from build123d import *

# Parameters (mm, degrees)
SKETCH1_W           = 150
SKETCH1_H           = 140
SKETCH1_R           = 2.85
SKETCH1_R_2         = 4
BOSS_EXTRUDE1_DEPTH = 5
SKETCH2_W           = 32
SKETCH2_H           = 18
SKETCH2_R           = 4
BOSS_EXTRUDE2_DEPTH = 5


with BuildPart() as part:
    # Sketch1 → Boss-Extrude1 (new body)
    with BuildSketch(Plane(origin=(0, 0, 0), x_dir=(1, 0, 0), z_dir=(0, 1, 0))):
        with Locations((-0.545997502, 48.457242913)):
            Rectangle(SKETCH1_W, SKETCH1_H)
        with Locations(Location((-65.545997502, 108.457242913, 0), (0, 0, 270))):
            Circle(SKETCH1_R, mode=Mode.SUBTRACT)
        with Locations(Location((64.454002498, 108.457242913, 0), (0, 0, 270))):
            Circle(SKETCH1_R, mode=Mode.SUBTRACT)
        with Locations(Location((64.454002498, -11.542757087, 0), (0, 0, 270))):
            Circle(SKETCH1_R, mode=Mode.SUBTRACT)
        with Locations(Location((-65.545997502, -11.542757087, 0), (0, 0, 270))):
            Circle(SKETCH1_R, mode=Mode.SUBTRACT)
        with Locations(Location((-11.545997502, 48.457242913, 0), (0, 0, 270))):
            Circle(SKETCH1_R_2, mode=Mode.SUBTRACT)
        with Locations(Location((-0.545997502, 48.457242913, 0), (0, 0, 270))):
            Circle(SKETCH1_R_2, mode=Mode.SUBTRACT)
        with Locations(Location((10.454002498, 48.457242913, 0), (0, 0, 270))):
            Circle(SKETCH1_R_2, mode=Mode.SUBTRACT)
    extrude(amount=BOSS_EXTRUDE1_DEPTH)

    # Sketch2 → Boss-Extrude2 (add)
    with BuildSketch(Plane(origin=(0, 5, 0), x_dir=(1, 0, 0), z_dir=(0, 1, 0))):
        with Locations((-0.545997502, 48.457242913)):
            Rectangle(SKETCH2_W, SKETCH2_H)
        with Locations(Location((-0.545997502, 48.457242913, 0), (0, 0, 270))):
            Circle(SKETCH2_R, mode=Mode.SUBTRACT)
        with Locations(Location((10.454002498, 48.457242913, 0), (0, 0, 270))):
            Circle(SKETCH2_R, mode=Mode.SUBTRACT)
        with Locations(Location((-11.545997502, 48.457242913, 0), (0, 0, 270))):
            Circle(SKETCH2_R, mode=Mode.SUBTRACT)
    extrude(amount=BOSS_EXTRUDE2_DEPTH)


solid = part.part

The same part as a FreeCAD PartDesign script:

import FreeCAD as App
import Part
import Sketcher

V = App.Vector
Q = App.Units.Quantity

doc = App.newDocument("Part")
body = doc.addObject("PartDesign::Body", "Body")

sketch1 = body.newObject("Sketcher::SketchObject", "Sketch")
sketch1.AttachmentSupport = (doc.getObject("XZ_Plane"), [""])
sketch1.MapMode = "FlatFace"
sketch1.addGeometry(Part.LineSegment(V(-75.5, -118.5, 0), V(-75.5, 21.5, 0)), False)
sketch1.addGeometry(Part.LineSegment(V(-75.5, 21.5, 0), V(74.5, 21.5, 0)), False)
sketch1.addGeometry(Part.LineSegment(V(74.5, 21.5, 0), V(74.5, -118.5, 0)), False)
sketch1.addGeometry(Part.LineSegment(V(74.5, -118.5, 0), V(-75.5, -118.5, 0)), False)
sketch1.addGeometry(Part.Circle(V(-65.5, 11.5, 0), V(0, 0, 1), 2.9), False)
sketch1.addGeometry(Part.Circle(V(64.5, 11.5, 0), V(0, 0, 1), 2.9), False)
sketch1.addGeometry(Part.Circle(V(-11.5, -48.5, 0), V(0, 0, 1), 4), False)
sketch1.addGeometry(Part.Circle(V(-65.5, -108.5, 0), V(0, 0, 1), 2.9), False)
sketch1.addGeometry(Part.Circle(V(-0.5, -48.5, 0), V(0, 0, 1), 4), False)
sketch1.addGeometry(Part.Circle(V(10.5, -48.5, 0), V(0, 0, 1), 4), False)
sketch1.addGeometry(Part.Circle(V(64.5, -108.5, 0), V(0, 0, 1), 2.9), False)
sketch1.addConstraint(Sketcher.Constraint("Coincident", 0, 2, 1, 1))
sketch1.addConstraint(Sketcher.Constraint("Coincident", 1, 2, 2, 1))
sketch1.addConstraint(Sketcher.Constraint("Coincident", 2, 2, 3, 1))
sketch1.addConstraint(Sketcher.Constraint("Coincident", 3, 2, 0, 1))
sketch1.addConstraint(Sketcher.Constraint("Vertical", 0))
sketch1.addConstraint(Sketcher.Constraint("Horizontal", 1))
sketch1.addConstraint(Sketcher.Constraint("Vertical", 2))
sketch1.addConstraint(Sketcher.Constraint("Horizontal", 3))
sketch1.addConstraint(Sketcher.Constraint("Equal", 4, 5))
sketch1.addConstraint(Sketcher.Constraint("Equal", 5, 7))
sketch1.addConstraint(Sketcher.Constraint("Equal", 6, 8))
sketch1.addConstraint(Sketcher.Constraint("Equal", 8, 9))
sketch1.addConstraint(Sketcher.Constraint("Equal", 7, 10))
sketch1.addConstraint(Sketcher.Constraint("Horizontal", 4, 3, 5, 3))
sketch1.addConstraint(Sketcher.Constraint("Horizontal", 6, 3, 8, 3))
sketch1.addConstraint(Sketcher.Constraint("Horizontal", 8, 3, 9, 3))
sketch1.addConstraint(Sketcher.Constraint("Horizontal", 7, 3, 10, 3))
sketch1.addConstraint(Sketcher.Constraint("Vertical", 4, 3, 7, 3))
sketch1.addConstraint(Sketcher.Constraint("Vertical", 5, 3, 10, 3))
sketch1.addConstraint(Sketcher.Constraint("Diameter", 6, Q("8 mm")))
sketch1.addConstraint(Sketcher.Constraint("Diameter", 4, Q("5.7 mm")))
sketch1.addConstraint(Sketcher.Constraint("DistanceX", 1, 1, 1, 2, Q("150 mm")))
sketch1.addConstraint(Sketcher.Constraint("DistanceY", 0, 1, 0, 2, Q("140 mm")))
sketch1.addConstraint(Sketcher.Constraint("DistanceX", 4, 3, 5, 3, Q("130 mm")))
sketch1.addConstraint(Sketcher.Constraint("DistanceX", 4, 3, 6, 3, Q("54 mm")))
sketch1.addConstraint(Sketcher.Constraint("DistanceY", 6, 3, 4, 3, Q("60 mm")))
sketch1.addConstraint(Sketcher.Constraint("DistanceY", 7, 3, 6, 3, Q("60 mm")))
sketch1.addConstraint(Sketcher.Constraint("DistanceX", 6, 3, 8, 3, Q("11 mm")))
sketch1.addConstraint(Sketcher.Constraint("DistanceX", 8, 3, 9, 3, Q("11 mm")))
sketch1.addConstraint(Sketcher.Constraint("DistanceX", 0, 2, 4, 3, Q("10 mm")))
sketch1.addConstraint(Sketcher.Constraint("DistanceY", 4, 3, 0, 2, Q("10 mm")))
sketch1.addConstraint(Sketcher.Constraint("DistanceX", 4, 3, -1, 1, Q("65.545998 mm")))
sketch1.addConstraint(Sketcher.Constraint("DistanceY", -1, 1, 4, 3, Q("11.542757 mm")))
pad1 = body.newObject("PartDesign::Pad", "Pad")
pad1.Profile = sketch1
pad1.Length = 5
pad1.Reversed = True

sketch2 = body.newObject("Sketcher::SketchObject", "Sketch001")
sketch2.AttachmentSupport = (doc.getObject("XZ_Plane"), [""])
sketch2.MapMode = "FlatFace"
sketch2.AttachmentOffset = App.Placement(V(0, 0, -5), App.Rotation())
sketch2.addGeometry(Part.LineSegment(V(-16.5, -57.5, 0), V(-16.5, -39.5, 0)), False)
sketch2.addGeometry(Part.LineSegment(V(-16.5, -39.5, 0), V(15.5, -39.5, 0)), False)
sketch2.addGeometry(Part.LineSegment(V(15.5, -39.5, 0), V(15.5, -57.5, 0)), False)
sketch2.addGeometry(Part.LineSegment(V(15.5, -57.5, 0), V(-16.5, -57.5, 0)), False)
sketch2.addGeometry(Part.Circle(V(-11.5, -48.5, 0), V(0, 0, 1), 4), False)
sketch2.addGeometry(Part.Circle(V(-0.5, -48.5, 0), V(0, 0, 1), 4), False)
sketch2.addGeometry(Part.Circle(V(10.5, -48.5, 0), V(0, 0, 1), 4), False)
sketch2.addConstraint(Sketcher.Constraint("Coincident", 0, 2, 1, 1))
sketch2.addConstraint(Sketcher.Constraint("Coincident", 1, 2, 2, 1))
sketch2.addConstraint(Sketcher.Constraint("Coincident", 2, 2, 3, 1))
sketch2.addConstraint(Sketcher.Constraint("Coincident", 3, 2, 0, 1))
sketch2.addConstraint(Sketcher.Constraint("Vertical", 0))
sketch2.addConstraint(Sketcher.Constraint("Horizontal", 1))
sketch2.addConstraint(Sketcher.Constraint("Vertical", 2))
sketch2.addConstraint(Sketcher.Constraint("Horizontal", 3))
sketch2.addConstraint(Sketcher.Constraint("Equal", 4, 5))
sketch2.addConstraint(Sketcher.Constraint("Equal", 5, 6))
sketch2.addConstraint(Sketcher.Constraint("Horizontal", 4, 3, 5, 3))
sketch2.addConstraint(Sketcher.Constraint("Horizontal", 5, 3, 6, 3))
sketch2.addConstraint(Sketcher.Constraint("Diameter", 4, Q("8 mm")))
sketch2.addConstraint(Sketcher.Constraint("DistanceX", 1, 1, 1, 2, Q("32 mm")))
sketch2.addConstraint(Sketcher.Constraint("DistanceY", 0, 1, 0, 2, Q("18 mm")))
sketch2.addConstraint(Sketcher.Constraint("DistanceX", 4, 3, 5, 3, Q("11 mm")))
sketch2.addConstraint(Sketcher.Constraint("DistanceX", 5, 3, 6, 3, Q("11 mm")))
sketch2.addConstraint(Sketcher.Constraint("DistanceX", 0, 2, 4, 3, Q("5 mm")))
sketch2.addConstraint(Sketcher.Constraint("DistanceY", 4, 3, 0, 2, Q("9 mm")))
sketch2.addConstraint(Sketcher.Constraint("DistanceX", 4, 3, -1, 1, Q("11.545998 mm")))
sketch2.addConstraint(Sketcher.Constraint("DistanceY", 4, 3, -1, 1, Q("48.457243 mm")))
pad2 = body.newObject("PartDesign::Pad", "Pad001")
pad2.Profile = sketch2
pad2.Length = 5
pad2.Reversed = True

doc.recompute()
